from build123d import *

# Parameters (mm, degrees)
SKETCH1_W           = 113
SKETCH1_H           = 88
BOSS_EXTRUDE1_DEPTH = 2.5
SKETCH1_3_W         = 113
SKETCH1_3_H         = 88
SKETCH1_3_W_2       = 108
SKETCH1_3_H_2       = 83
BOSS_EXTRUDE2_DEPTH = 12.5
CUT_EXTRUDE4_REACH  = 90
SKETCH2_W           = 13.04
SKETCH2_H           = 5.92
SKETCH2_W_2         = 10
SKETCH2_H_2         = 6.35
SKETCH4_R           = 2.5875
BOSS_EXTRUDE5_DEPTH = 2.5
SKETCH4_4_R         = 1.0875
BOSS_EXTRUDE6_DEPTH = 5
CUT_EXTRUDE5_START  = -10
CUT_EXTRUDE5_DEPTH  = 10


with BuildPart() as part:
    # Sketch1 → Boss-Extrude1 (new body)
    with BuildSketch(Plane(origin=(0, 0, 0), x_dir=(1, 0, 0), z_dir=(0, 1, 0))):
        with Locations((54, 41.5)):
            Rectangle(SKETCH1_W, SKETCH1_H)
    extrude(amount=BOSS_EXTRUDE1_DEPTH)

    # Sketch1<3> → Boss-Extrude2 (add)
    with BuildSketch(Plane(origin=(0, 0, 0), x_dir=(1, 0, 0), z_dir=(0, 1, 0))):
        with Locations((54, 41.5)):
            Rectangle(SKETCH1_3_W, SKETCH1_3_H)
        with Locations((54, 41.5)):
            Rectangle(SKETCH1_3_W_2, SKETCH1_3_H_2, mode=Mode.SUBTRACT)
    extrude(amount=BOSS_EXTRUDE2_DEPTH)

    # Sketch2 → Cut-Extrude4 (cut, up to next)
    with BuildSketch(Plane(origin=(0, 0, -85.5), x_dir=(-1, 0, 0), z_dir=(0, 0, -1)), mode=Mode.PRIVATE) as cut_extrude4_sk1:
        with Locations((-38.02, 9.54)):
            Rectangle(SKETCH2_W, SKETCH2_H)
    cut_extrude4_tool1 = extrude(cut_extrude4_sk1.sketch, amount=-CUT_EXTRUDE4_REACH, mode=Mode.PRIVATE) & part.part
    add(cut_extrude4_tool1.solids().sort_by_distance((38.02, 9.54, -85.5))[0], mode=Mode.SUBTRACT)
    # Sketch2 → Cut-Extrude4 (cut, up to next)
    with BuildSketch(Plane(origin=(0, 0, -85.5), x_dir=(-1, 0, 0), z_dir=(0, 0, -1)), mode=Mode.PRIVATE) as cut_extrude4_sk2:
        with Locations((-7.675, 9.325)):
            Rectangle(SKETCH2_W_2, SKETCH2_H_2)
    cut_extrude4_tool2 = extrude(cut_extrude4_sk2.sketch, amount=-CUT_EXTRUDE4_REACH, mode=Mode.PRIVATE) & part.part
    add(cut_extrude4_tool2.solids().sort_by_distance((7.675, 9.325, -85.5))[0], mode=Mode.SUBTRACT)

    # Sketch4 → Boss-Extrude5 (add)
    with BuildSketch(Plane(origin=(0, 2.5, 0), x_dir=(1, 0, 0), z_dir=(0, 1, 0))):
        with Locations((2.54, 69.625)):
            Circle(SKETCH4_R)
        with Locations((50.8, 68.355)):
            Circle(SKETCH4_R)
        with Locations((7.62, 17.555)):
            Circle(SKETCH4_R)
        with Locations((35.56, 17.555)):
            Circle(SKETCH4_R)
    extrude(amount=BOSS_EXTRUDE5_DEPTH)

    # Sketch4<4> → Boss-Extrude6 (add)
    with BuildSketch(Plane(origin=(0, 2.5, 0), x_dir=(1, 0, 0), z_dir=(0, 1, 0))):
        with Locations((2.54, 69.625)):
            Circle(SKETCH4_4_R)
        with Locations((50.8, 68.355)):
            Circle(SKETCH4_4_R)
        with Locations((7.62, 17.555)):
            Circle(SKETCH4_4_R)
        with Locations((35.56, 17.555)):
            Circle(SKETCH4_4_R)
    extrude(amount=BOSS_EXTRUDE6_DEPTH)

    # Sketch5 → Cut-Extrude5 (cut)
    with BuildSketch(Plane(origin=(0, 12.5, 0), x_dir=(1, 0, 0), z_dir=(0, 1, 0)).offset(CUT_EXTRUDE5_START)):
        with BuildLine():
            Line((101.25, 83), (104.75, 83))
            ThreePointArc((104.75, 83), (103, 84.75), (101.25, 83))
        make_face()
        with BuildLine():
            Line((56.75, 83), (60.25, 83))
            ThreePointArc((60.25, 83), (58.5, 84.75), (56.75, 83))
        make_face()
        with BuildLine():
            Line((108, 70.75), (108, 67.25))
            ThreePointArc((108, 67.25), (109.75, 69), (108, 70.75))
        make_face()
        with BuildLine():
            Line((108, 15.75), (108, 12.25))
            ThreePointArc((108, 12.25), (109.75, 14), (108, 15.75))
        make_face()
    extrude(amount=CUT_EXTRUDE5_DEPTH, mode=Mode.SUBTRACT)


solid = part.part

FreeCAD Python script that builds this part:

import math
import FreeCAD as App
import Part
import Sketcher
Q = App.Units.Quantity


def add_polygon(sketch, points):
    """Adds a closed chain of lines whose ends are joined by coincident constraints."""
    first, n = sketch.GeometryCount, len(points)
    for a, b in zip(points, points[1:] + points[:1]):
        sketch.addGeometry(Part.LineSegment(App.Vector(*a, 0), App.Vector(*b, 0)), False)
    for i in range(n):
        sketch.addConstraint(Sketcher.Constraint("Coincident", first + i, 2, first + (i + 1) % n, 1))

doc = App.newDocument("Part")
body = doc.addObject("PartDesign::Body", "Body")

# Sketch on XZ plane
sketch1 = body.newObject("Sketcher::SketchObject", "Sketch")
sketch1.AttachmentSupport = (doc.getObject("XZ_Plane"), [""])
sketch1.MapMode = "FlatFace"
add_polygon(sketch1, [(-2, -86), (-2, 2), (110, 2), (110, -86)])  # lines 0-3
sketch1.addConstraint([
    Sketcher.Constraint("Vertical", 0),
    Sketcher.Constraint("Horizontal", 1),
    Sketcher.Constraint("Vertical", 2),
    Sketcher.Constraint("Horizontal", 3),
    Sketcher.Constraint("DistanceX", 1, 1, 1, 2, Q("113 mm")),
    Sketcher.Constraint("DistanceY", 0, 1, 0, 2, Q("88 mm")),
    Sketcher.Constraint("DistanceX", 0, 2, -1, 1, Q("2.5 mm")),
    Sketcher.Constraint("DistanceY", -1, 1, 0, 2, Q("2.5 mm")),
])
pad1 = body.newObject("PartDesign::Pad", "Pad")
pad1.Profile = sketch1
pad1.Length = 2.5
pad1.Reversed = True

# Sketch on XZ plane
sketch2 = body.newObject("Sketcher::SketchObject", "Sketch001")
sketch2.AttachmentSupport = (doc.getObject("XZ_Plane"), [""])
sketch2.MapMode = "FlatFace"
add_polygon(sketch2, [(-2, -86), (-2, 2), (110, 2), (110, -86)])  # lines 0-3
add_polygon(sketch2, [(108, 0), (0, 0), (0, -83), (108, -83)])  # lines 4-7
sketch2.addConstraint([
    Sketcher.Constraint("Vertical", 0),
    Sketcher.Constraint("Horizontal", 1),
    Sketcher.Constraint("Vertical", 2),
    Sketcher.Constraint("Horizontal", 3),
    Sketcher.Constraint("Horizontal", 4),
    Sketcher.Constraint("Vertical", 5),
    Sketcher.Constraint("Horizontal", 6),
    Sketcher.Constraint("Vertical", 7),
    Sketcher.Constraint("Coincident", 4, 2, -1, 1),
    Sketcher.Constraint("DistanceX", 1, 1, 1, 2, Q("113 mm")),
    Sketcher.Constraint("DistanceX", 4, 2, 4, 1, Q("108 mm")),
    Sketcher.Constraint("DistanceY", 0, 1, 0, 2, Q("88 mm")),
    Sketcher.Constraint("DistanceY", 5, 2, 5, 1, Q("83 mm")),
    Sketcher.Constraint("DistanceX", 0, 2, -1, 1, Q("2.5 mm")),
    Sketcher.Constraint("DistanceY", -1, 1, 0, 2, Q("2.5 mm")),
])
pad2 = body.newObject("PartDesign::Pad", "Pad001")
pad2.Profile = sketch2
pad2.Length = 12.5
pad2.Reversed = True

# Sketch on XY plane
sketch3 = body.newObject("Sketcher::SketchObject", "Sketch002")
sketch3.AttachmentSupport = (doc.getObject("XY_Plane"), [""])
sketch3.MapMode = "FlatFace"
sketch3.AttachmentOffset = App.Placement(App.Vector(0, 0, -85.5), App.Rotation())
add_polygon(sketch3, [(45, 12), (45, 7), (32, 7), (32, 12)])  # lines 0-3
sketch3.addConstraint([
    Sketcher.Constraint("Vertical", 0),
    Sketcher.Constraint("Horizontal", 1),
    Sketcher.Constraint("Vertical", 2),
    Sketcher.Constraint("Horizontal", 3),
    Sketcher.Constraint("DistanceX", 1, 2, 1, 1, Q("13.04 mm")),
    Sketcher.Constraint("DistanceY", 0, 2, 0, 1, Q("5.92 mm")),
    Sketcher.Constraint("DistanceX", -1, 1, 1, 2, Q("31.5 mm")),
    Sketcher.Constraint("DistanceY", -1, 1, 2, 2, Q("12.5 mm")),
])
pocket1 = body.newObject("PartDesign::Pocket", "Pocket")
pocket1.Profile = sketch3
pocket1.Type = "UpToFirst"
pocket1.Reversed = True

# Sketch on XY plane
sketch4 = body.newObject("Sketcher::SketchObject", "Sketch003")
sketch4.AttachmentSupport = (doc.getObject("XY_Plane"), [""])
sketch4.MapMode = "FlatFace"
sketch4.AttachmentOffset = App.Placement(App.Vector(0, 0, -85.5), App.Rotation())
add_polygon(sketch4, [(13, 12), (13, 6), (3, 6), (3, 12)])  # lines 0-3
sketch4.addConstraint([
    Sketcher.Constraint("Vertical", 0),
    Sketcher.Constraint("Horizontal", 1),
    Sketcher.Constraint("Vertical", 2),
    Sketcher.Constraint("Horizontal", 3),
    Sketcher.Constraint("DistanceX", 1, 2, 1, 1, Q("10 mm")),
    Sketcher.Constraint("DistanceY", 0, 2, 0, 1, Q("6.35 mm")),
    Sketcher.Constraint("DistanceY", -1, 1, 2, 2, Q("12.5 mm")),
    Sketcher.Constraint("DistanceX", -1, 1, 0, 2, Q("12.675 mm")),
])
pocket2 = body.newObject("PartDesign::Pocket", "Pocket001")
pocket2.Profile = sketch4
pocket2.Type = "UpToFirst"
pocket2.Reversed = True

# Sketch on XZ plane
sketch5 = body.newObject("Sketcher::SketchObject", "Sketch004")
sketch5.AttachmentSupport = (doc.getObject("XZ_Plane"), [""])
sketch5.MapMode = "FlatFace"
sketch5.AttachmentOffset = App.Placement(App.Vector(0, 0, -2.5), App.Rotation())
sketch5.addGeometry([
    Part.Circle(App.Vector(2.5, -69.6, 0), App.Vector(0, 0, 1), 2.6),
    Part.Circle(App.Vector(50.8, -68.4, 0), App.Vector(0, 0, 1), 2.6),
    Part.Circle(App.Vector(7.6, -17.6, 0), App.Vector(0, 0, 1), 2.6),
    Part.Circle(App.Vector(35.6, -17.6, 0), App.Vector(0, 0, 1), 2.6),
], False)
sketch5.addConstraint([
    Sketcher.Constraint("Equal", 0, 1),
    Sketcher.Constraint("Equal", 1, 2),
    Sketcher.Constraint("Equal", 2, 3),
    Sketcher.Constraint("Horizontal", 2, 3, 3, 3),
    Sketcher.Constraint("Diameter", 0, Q("5.175 mm")),
    Sketcher.Constraint("DistanceX", -1, 1, 1, 3, Q("50.8 mm")),
    Sketcher.Constraint("DistanceY", 1, 3, 2, 3, Q("50.8 mm")),
    Sketcher.Constraint("DistanceX", -1, 1, 0, 3, Q("2.54 mm")),
    Sketcher.Constraint("DistanceX", -1, 1, 2, 3, Q("7.62 mm")),
    Sketcher.Constraint("DistanceX", -1, 1, 3, 3, Q("35.56 mm")),
    Sketcher.Constraint("DistanceY", 0, 3, 1, 3, Q("1.27 mm")),
    Sketcher.Constraint("DistanceY", 0, 3, -1, 1, Q("69.625 mm")),
])
pad3 = body.newObject("PartDesign::Pad", "Pad002")
pad3.Profile = sketch5
pad3.Length = 2.5
pad3.Reversed = True

# Sketch on XZ plane
sketch6 = body.newObject("Sketcher::SketchObject", "Sketch005")
sketch6.AttachmentSupport = (doc.getObject("XZ_Plane"), [""])
sketch6.MapMode = "FlatFace"
sketch6.AttachmentOffset = App.Placement(App.Vector(0, 0, -2.5), App.Rotation())
sketch6.addGeometry([
    Part.Circle(App.Vector(2.5, -69.6, 0), App.Vector(0, 0, 1), 1.1),
    Part.Circle(App.Vector(50.8, -68.4, 0), App.Vector(0, 0, 1), 1.1),
    Part.Circle(App.Vector(7.6, -17.6, 0), App.Vector(0, 0, 1), 1.1),
    Part.Circle(App.Vector(35.6, -17.6, 0), App.Vector(0, 0, 1), 1.1),
], False)
sketch6.addConstraint([
    Sketcher.Constraint("Equal", 0, 1),
    Sketcher.Constraint("Equal", 1, 2),
    Sketcher.Constraint("Equal", 2, 3),
    Sketcher.Constraint("Horizontal", 2, 3, 3, 3),
    Sketcher.Constraint("Diameter", 0, Q("2.175 mm")),
    Sketcher.Constraint("DistanceX", -1, 1, 1, 3, Q("50.8 mm")),
    Sketcher.Constraint("DistanceY", 1, 3, 2, 3, Q("50.8 mm")),
    Sketcher.Constraint("DistanceX", -1, 1, 0, 3, Q("2.54 mm")),
    Sketcher.Constraint("DistanceX", -1, 1, 2, 3, Q("7.62 mm")),
    Sketcher.Constraint("DistanceX", -1, 1, 3, 3, Q("35.56 mm")),
    Sketcher.Constraint("DistanceY", 0, 3, 1, 3, Q("1.27 mm")),
    Sketcher.Constraint("DistanceY", 0, 3, -1, 1, Q("69.625 mm")),
])
pad4 = body.newObject("PartDesign::Pad", "Pad003")
pad4.Profile = sketch6
pad4.Length = 5
pad4.Reversed = True

# Sketch on XZ plane
sketch7 = body.newObject("Sketcher::SketchObject", "Sketch006")
sketch7.AttachmentSupport = (doc.getObject("XZ_Plane"), [""])
sketch7.MapMode = "FlatFace"
sketch7.AttachmentOffset = App.Placement(App.Vector(0, 0, -2.5), App.Rotation())
sketch7.addGeometry([
    Part.LineSegment(App.Vector(101.2, -83, 0), App.Vector(104.8, -83, 0)),  # 0
    Part.ArcOfCircle(Part.Circle(App.Vector(103, -83, 0), App.Vector(0, 0, 1), 1.8), math.radians(180), math.radians(360)),  # 1
    Part.LineSegment(App.Vector(56.8, -83, 0), App.Vector(60.2, -83, 0)),  # 2
    Part.ArcOfCircle(Part.Circle(App.Vector(58.5, -83, 0), App.Vector(0, 0, 1), 1.8), math.radians(180), math.radians(360)),  # 3
    Part.LineSegment(App.Vector(108, -70.8, 0), App.Vector(108, -67.2, 0)),  # 4
    Part.ArcOfCircle(Part.Circle(App.Vector(108, -69, 0), App.Vector(0, 0, 1), 1.8), math.radians(-90), math.radians(90)),  # 5
    Part.LineSegment(App.Vector(108, -15.8, 0), App.Vector(108, -12.2, 0)),  # 6
    Part.ArcOfCircle(Part.Circle(App.Vector(108, -14, 0), App.Vector(0, 0, 1), 1.8), math.radians(-90), math.radians(90)),  # 7
], False)
sketch7.addConstraint([
    Sketcher.Constraint("Coincident", 0, 1, 1, 1),
    Sketcher.Constraint("Coincident", 1, 2, 0, 2),
    Sketcher.Constraint("Coincident", 2, 1, 3, 1),
    Sketcher.Constraint("Coincident", 3, 2, 2, 2),
    Sketcher.Constraint("Coincident", 4, 1, 5, 1),
    Sketcher.Constraint("Coincident", 5, 2, 4, 2),
    Sketcher.Constraint("Coincident", 6, 1, 7, 1),
    Sketcher.Constraint("Coincident", 7, 2, 6, 2),
    Sketcher.Constraint("Horizontal", 0),
    Sketcher.Constraint("Horizontal", 2),
    Sketcher.Constraint("Vertical", 4),
    Sketcher.Constraint("Vertical", 6),
    Sketcher.Constraint("Equal", 1, 3),
    Sketcher.Constraint("Equal", 3, 5),
    Sketcher.Constraint("Equal", 5, 7),
    Sketcher.Constraint("Horizontal", 1, 3, 3, 3),
    Sketcher.Constraint("Horizontal", 3, 3, 0, 1),
    Sketcher.Constraint("Horizontal", 1, 2, 2, 1),
    Sketcher.Constraint("Vertical", 5, 3, 7, 3),
    Sketcher.Constraint("Vertical", 7, 3, 4, 1),
    Sketcher.Constraint("Vertical", 5, 2, 6, 1),
    Sketcher.Constraint("Radius", 1, Q("1.75 mm")),
    Sketcher.Constraint("DistanceX", -1, 1, 1, 3, Q("103 mm")),
    Sketcher.Constraint("DistanceY", 1, 3, -1, 1, Q("83 mm")),
    Sketcher.Constraint("DistanceX", -1, 1, 5, 3, Q("108 mm")),
    Sketcher.Constraint("DistanceY", 5, 3, -1, 1, Q("69 mm")),
    Sketcher.Constraint("DistanceY", 7, 3, -1, 1, Q("14 mm")),
    Sketcher.Constraint("DistanceX", 2, 1, 1, 2, Q("48 mm")),
])
pocket3 = body.newObject("PartDesign::Pocket", "Pocket002")
pocket3.Profile = sketch7
pocket3.Length = 10

doc.recompute()
